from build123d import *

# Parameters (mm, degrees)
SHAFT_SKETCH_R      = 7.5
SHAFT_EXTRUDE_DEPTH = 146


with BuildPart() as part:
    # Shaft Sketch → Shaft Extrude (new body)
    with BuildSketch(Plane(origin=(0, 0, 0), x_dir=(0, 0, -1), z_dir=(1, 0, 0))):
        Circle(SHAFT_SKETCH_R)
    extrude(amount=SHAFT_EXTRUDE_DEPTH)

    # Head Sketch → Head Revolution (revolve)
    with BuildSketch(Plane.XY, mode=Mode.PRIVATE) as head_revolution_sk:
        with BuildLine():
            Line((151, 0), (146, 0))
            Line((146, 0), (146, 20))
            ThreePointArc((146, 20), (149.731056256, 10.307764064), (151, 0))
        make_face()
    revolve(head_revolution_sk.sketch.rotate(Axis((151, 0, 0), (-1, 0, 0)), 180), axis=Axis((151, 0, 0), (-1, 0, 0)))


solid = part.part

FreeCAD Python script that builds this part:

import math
import FreeCAD as App
import Part
import Sketcher
from FreeCAD import Vector

doc = App.newDocument("Part")
params = doc.addObject("Spreadsheet::Sheet", "Params")
for row, (alias, value) in enumerate([
    ("sketch1_diameter", "15 mm"),
    ("pad1_length", "146 mm"),
    ("sketch2_radius", "42.5 mm"),
    ("sketch2_width", "5 mm"),
    ("revolution_angle", "360 deg"),
], start=1):
    params.set(f"A{row}", alias)
    params.set(f"B{row}", "=" + value)
    params.setAlias(f"B{row}", alias)

body = doc.addObject("PartDesign::Body", "Body")

# Sketch on YZ plane
sketch1 = doc.addObject("Sketcher::SketchObject", "Sketch")
body.addObject(sketch1)
sketch1.AttachmentSupport = (doc.YZ_Plane, [""])
sketch1.MapMode = "FlatFace"
sketch1.addGeometry(Part.Circle(Vector(0, 0, 0), Vector(0, 0, 1), 8), False)
sketch1.addConstraint(Sketcher.Constraint("Coincident", 0, 3, -1, 1))
sketch1.addConstraint(Sketcher.Constraint("Diameter", 0, 15.0))
sketch1.setExpression("Constraints[1]", "Params.sketch1_diameter")
pad1 = doc.addObject("PartDesign::Pad", "Pad")
body.addObject(pad1)
pad1.Profile = sketch1
pad1.setExpression("Length", "Params.pad1_length")

# Sketch on XY plane
sketch2 = doc.addObject("Sketcher::SketchObject", "Sketch001")
body.addObject(sketch2)
sketch2.AttachmentSupport = (doc.XY_Plane, [""])
sketch2.MapMode = "FlatFace"
sketch2.addGeometry(Part.LineSegment(Vector(146, 0, 0), Vector(151, 0, 0)), False)
sketch2.addGeometry(Part.ArcOfCircle(Part.Circle(Vector(108, 0, 0), Vector(0, 0, 1), 43), math.radians(0), math.radians(28)), False)
sketch2.addGeometry(Part.LineSegment(Vector(146, 20, 0), Vector(146, 0, 0)), False)
sketch2.addConstraint(Sketcher.Constraint("Coincident", 0, 2, 1, 1))
sketch2.addConstraint(Sketcher.Constraint("Coincident", 1, 2, 2, 1))
sketch2.addConstraint(Sketcher.Constraint("Coincident", 2, 2, 0, 1))
sketch2.addConstraint(Sketcher.Constraint("Horizontal", 0))
sketch2.addConstraint(Sketcher.Constraint("Vertical", 2))
sketch2.addConstraint(Sketcher.Constraint("PointOnObject", 1, 3, -1))
sketch2.addConstraint(Sketcher.Constraint("PointOnObject", 0, 2, -1))
sketch2.addConstraint(Sketcher.Constraint("Radius", 1, 42.5))
sketch2.addConstraint(Sketcher.Constraint("DistanceX", 0, 1, 0, 2, 5.0))
sketch2.addConstraint(Sketcher.Constraint("DistanceX", -1, 1, 0, 2, 151.0))
sketch2.setExpression("Constraints[7]", "Params.sketch2_radius")
sketch2.setExpression("Constraints[8]", "Params.sketch2_width")
revolution = doc.addObject("PartDesign::Revolution", "Revolution")
body.addObject(revolution)
revolution.Profile = sketch2
revolution.ReferenceAxis = (sketch2, ["H_Axis"])
revolution.setExpression("Angle", "Params.revolution_angle")

doc.recompute()
